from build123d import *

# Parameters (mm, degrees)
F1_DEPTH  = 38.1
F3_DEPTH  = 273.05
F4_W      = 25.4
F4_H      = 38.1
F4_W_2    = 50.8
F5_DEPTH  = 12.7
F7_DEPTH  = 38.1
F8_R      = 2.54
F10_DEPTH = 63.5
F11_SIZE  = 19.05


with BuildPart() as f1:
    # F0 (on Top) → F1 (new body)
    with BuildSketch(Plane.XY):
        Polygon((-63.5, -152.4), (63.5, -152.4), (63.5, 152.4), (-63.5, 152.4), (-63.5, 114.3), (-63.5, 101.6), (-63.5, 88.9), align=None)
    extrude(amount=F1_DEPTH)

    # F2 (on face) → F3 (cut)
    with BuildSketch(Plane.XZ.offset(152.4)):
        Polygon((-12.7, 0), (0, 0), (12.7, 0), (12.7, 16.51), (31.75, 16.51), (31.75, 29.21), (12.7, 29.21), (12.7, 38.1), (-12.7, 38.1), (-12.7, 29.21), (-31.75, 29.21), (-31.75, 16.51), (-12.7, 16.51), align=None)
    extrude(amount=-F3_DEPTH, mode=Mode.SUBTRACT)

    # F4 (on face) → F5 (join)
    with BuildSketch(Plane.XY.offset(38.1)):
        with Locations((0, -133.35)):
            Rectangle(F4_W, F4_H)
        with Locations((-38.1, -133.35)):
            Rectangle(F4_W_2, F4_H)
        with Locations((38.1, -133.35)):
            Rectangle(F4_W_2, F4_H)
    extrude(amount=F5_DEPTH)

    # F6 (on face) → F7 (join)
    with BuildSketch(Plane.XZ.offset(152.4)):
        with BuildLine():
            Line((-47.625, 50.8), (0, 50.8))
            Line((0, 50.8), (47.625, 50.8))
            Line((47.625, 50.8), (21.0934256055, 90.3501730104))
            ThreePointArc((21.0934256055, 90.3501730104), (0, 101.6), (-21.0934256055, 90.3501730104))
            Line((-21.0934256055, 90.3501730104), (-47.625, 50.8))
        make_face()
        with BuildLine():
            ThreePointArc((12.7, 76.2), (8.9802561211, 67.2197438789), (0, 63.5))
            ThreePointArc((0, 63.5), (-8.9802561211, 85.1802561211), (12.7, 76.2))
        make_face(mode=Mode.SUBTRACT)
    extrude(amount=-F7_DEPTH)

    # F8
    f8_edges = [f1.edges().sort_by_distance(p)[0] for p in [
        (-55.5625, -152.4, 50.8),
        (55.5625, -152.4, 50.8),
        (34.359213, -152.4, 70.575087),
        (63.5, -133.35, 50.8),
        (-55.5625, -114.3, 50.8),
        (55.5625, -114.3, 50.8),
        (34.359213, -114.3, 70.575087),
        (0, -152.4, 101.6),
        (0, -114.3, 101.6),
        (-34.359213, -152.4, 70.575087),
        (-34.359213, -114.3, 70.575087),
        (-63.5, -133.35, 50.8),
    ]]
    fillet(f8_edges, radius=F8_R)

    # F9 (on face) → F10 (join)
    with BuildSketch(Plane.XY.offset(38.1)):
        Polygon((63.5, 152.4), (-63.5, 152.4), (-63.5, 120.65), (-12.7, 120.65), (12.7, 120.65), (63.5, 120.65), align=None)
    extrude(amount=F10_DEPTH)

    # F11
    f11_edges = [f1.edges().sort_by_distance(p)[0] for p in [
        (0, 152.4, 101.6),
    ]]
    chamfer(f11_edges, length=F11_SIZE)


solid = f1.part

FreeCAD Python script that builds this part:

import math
import FreeCAD as App
import Part
import Sketcher
from FreeCAD import Vector
Q = App.Units.Quantity


def edges_at(feature, points):
    """Names of the edges that pass closest to the given points."""
    edges = feature.Shape.Edges
    near = lambda p: min(range(len(edges)), key=lambda i: edges[i].distToShape(Part.Vertex(*p))[0])
    return sorted({f"Edge{near(p) + 1}" for p in points})

doc = App.newDocument("Part")
body = doc.addObject("PartDesign::Body", "Body")

sketch1 = body.newObject("Sketcher::SketchObject", "Sketch")
sketch1.AttachmentSupport = (doc.getObject("XY_Plane"), [""])
sketch1.MapMode = "FlatFace"
sketch1.addGeometry([
    Part.LineSegment(Vector(-64, -152, 0), Vector(64, -152, 0)),
    Part.LineSegment(Vector(64, -152, 0), Vector(64, 152, 0)),
    Part.LineSegment(Vector(64, 152, 0), Vector(-64, 152, 0)),
    Part.LineSegment(Vector(-64, 152, 0), Vector(-64, -152, 0)),
], False)
sketch1.addConstraint([
    Sketcher.Constraint("Coincident", 0, 2, 1, 1),
    Sketcher.Constraint("Coincident", 1, 2, 2, 1),
    Sketcher.Constraint("Coincident", 2, 2, 3, 1),
    Sketcher.Constraint("Coincident", 3, 2, 0, 1),
    Sketcher.Constraint("Horizontal", 0),
    Sketcher.Constraint("Vertical", 1),
    Sketcher.Constraint("Horizontal", 2),
    Sketcher.Constraint("Vertical", 3),
    Sketcher.Constraint("Symmetric", 0, 2, 2, 2, -1, 1),
    Sketcher.Constraint("DistanceX", 0, 1, 0, 2, Q("5 in")),
    Sketcher.Constraint("DistanceY", 1, 1, 1, 2, Q("12 in")),
])
pad1 = body.newObject("PartDesign::Pad", "Pad")
pad1.Profile = sketch1
pad1.Length = Q("1.5 in")

sketch2 = body.newObject("Sketcher::SketchObject", "Sketch001")
sketch2.AttachmentSupport = (doc.getObject("XZ_Plane"), [""])
sketch2.MapMode = "FlatFace"
sketch2.AttachmentOffset = App.Placement(Vector(0, 0, 6 * 25.4), App.Rotation())
sketch2.addGeometry([
    Part.LineSegment(Vector(-13, 0, 0), Vector(13, 0, 0)),
    Part.LineSegment(Vector(13, 0, 0), Vector(13, 17, 0)),
    Part.LineSegment(Vector(13, 17, 0), Vector(32, 17, 0)),
    Part.LineSegment(Vector(32, 17, 0), Vector(32, 29, 0)),
    Part.LineSegment(Vector(32, 29, 0), Vector(13, 29, 0)),
    Part.LineSegment(Vector(13, 29, 0), Vector(13, 38, 0)),
    Part.LineSegment(Vector(13, 38, 0), Vector(-13, 38, 0)),
    Part.LineSegment(Vector(-13, 38, 0), Vector(-13, 29, 0)),
    Part.LineSegment(Vector(-13, 29, 0), Vector(-32, 29, 0)),
    Part.LineSegment(Vector(-32, 29, 0), Vector(-32, 17, 0)),
    Part.LineSegment(Vector(-32, 17, 0), Vector(-13, 17, 0)),
    Part.LineSegment(Vector(-13, 17, 0), Vector(-13, 0, 0)),
], False)
sketch2.addConstraint([
    Sketcher.Constraint("Coincident", 0, 2, 1, 1),
    Sketcher.Constraint("Coincident", 1, 2, 2, 1),
    Sketcher.Constraint("Coincident", 2, 2, 3, 1),
    Sketcher.Constraint("Coincident", 3, 2, 4, 1),
    Sketcher.Constraint("Coincident", 4, 2, 5, 1),
    Sketcher.Constraint("Coincident", 5, 2, 6, 1),
    Sketcher.Constraint("Coincident", 6, 2, 7, 1),
    Sketcher.Constraint("Coincident", 7, 2, 8, 1),
    Sketcher.Constraint("Coincident", 8, 2, 9, 1),
    Sketcher.Constraint("Coincident", 9, 2, 10, 1),
    Sketcher.Constraint("Coincident", 10, 2, 11, 1),
    Sketcher.Constraint("Coincident", 11, 2, 0, 1),
    Sketcher.Constraint("Horizontal", 0),
    Sketcher.Constraint("Vertical", 1),
    Sketcher.Constraint("Horizontal", 2),
    Sketcher.Constraint("Vertical", 3),
    Sketcher.Constraint("Horizontal", 4),
    Sketcher.Constraint("Vertical", 5),
    Sketcher.Constraint("Horizontal", 6),
    Sketcher.Constraint("Vertical", 7),
    Sketcher.Constraint("Horizontal", 8),
    Sketcher.Constraint("Vertical", 9),
    Sketcher.Constraint("Horizontal", 10),
    Sketcher.Constraint("Vertical", 11),
    Sketcher.Constraint("Symmetric", 0, 2, 11, 2, -1, 1),
    Sketcher.Constraint("Symmetric", 4, 2, 7, 2, -2),
    Sketcher.Constraint("Symmetric", 2, 2, 9, 2, -2),
    Sketcher.Constraint("Vertical", 1, 2, 4, 2),
    Sketcher.Constraint("DistanceX", 0, 1, 0, 2, Q("1 in")),
    Sketcher.Constraint("DistanceY", 3, 1, 3, 2, Q("0.5 in")),
    Sketcher.Constraint("DistanceX", 2, 1, 2, 2, Q("0.75 in")),
    Sketcher.Constraint("DistanceY", 1, 1, 1, 2, Q("0.65 in")),
    Sketcher.Constraint("DistanceY", 5, 1, 5, 2, Q("0.35 in")),
])
pocket1 = body.newObject("PartDesign::Pocket", "Pocket")
pocket1.Profile = sketch2
pocket1.Length = Q("10.75 in")

sketch3 = body.newObject("Sketcher::SketchObject", "Sketch002")
sketch3.AttachmentSupport = (doc.getObject("XY_Plane"), [""])
sketch3.MapMode = "FlatFace"
sketch3.AttachmentOffset = App.Placement(Vector(0, 0, 1.5 * 25.4), App.Rotation())
sketch3.addGeometry([
    Part.LineSegment(Vector(-64, -114, 0), Vector(-64, -152, 0)),
    Part.LineSegment(Vector(-64, -152, 0), Vector(64, -152, 0)),
    Part.LineSegment(Vector(64, -152, 0), Vector(64, -114, 0)),
    Part.LineSegment(Vector(64, -114, 0), Vector(-64, -114, 0)),
], False)
sketch3.addConstraint([
    Sketcher.Constraint("Coincident", 0, 2, 1, 1),
    Sketcher.Constraint("Coincident", 1, 2, 2, 1),
    Sketcher.Constraint("Coincident", 2, 2, 3, 1),
    Sketcher.Constraint("Coincident", 3, 2, 0, 1),
    Sketcher.Constraint("Vertical", 0),
    Sketcher.Constraint("Horizontal", 1),
    Sketcher.Constraint("Vertical", 2),
    Sketcher.Constraint("Horizontal", 3),
    Sketcher.Constraint("DistanceX", 1, 1, 1, 2, Q("5 in")),
    Sketcher.Constraint("DistanceY", 0, 2, 0, 1, Q("1.5 in")),
    Sketcher.Constraint("DistanceY", 0, 2, -1, 1, Q("6 in")),
    Sketcher.Constraint("DistanceX", 0, 2, -1, 1, Q("2.5 in")),
])
pad2 = body.newObject("PartDesign::Pad", "Pad001")
pad2.Profile = sketch3
pad2.Length = Q("0.5 in")

sketch4 = body.newObject("Sketcher::SketchObject", "Sketch003")
sketch4.AttachmentSupport = (doc.getObject("XZ_Plane"), [""])
sketch4.MapMode = "FlatFace"
sketch4.AttachmentOffset = App.Placement(Vector(0, 0, 6 * 25.4), App.Rotation())
sketch4.addGeometry([
    Part.LineSegment(Vector(-48, 51, 0), Vector(48, 51, 0)),
    Part.LineSegment(Vector(48, 51, 0), Vector(21, 90, 0)),
    Part.ArcOfCircle(Part.Circle(Vector(0, 76, 0), Vector(0, 0, 1), 25), math.radians(34), math.radians(146)),
    Part.LineSegment(Vector(-21, 90, 0), Vector(-48, 51, 0)),
    Part.ArcOfCircle(Part.Circle(Vector(0, 76, 0), Vector(0, 0, 1), 13), math.radians(0), math.radians(270)),
    Part.ArcOfCircle(Part.Circle(Vector(0, 76, 0), Vector(0, 0, 1), 13), math.radians(-90), math.radians(0)),
], False)
sketch4.addConstraint([
    Sketcher.Constraint("Coincident", 0, 2, 1, 1),
    Sketcher.Constraint("Tangent", 1, 2, 2, 1),
    Sketcher.Constraint("Tangent", 2, 2, 3, 1),
    Sketcher.Constraint("Coincident", 3, 2, 0, 1),
    Sketcher.Constraint("Tangent", 4, 1, 5, 2),
    Sketcher.Constraint("Coincident", 5, 1, 4, 2),
    Sketcher.Constraint("Horizontal", 0),
    Sketcher.Constraint("Coincident", 4, 3, 2, 3),
    Sketcher.Constraint("Symmetric", 1, 2, 2, 2, -2),
    Sketcher.Constraint("PointOnObject", 5, 1, -2),
    Sketcher.Constraint("Horizontal", 5, 3, 4, 1),
    Sketcher.Constraint("Radius", 2, Q("1 in")),
    Sketcher.Constraint("Radius", 4, Q("0.5 in")),
    Sketcher.Constraint("DistanceY", -1, 1, 2, 3, Q("3 in")),
    Sketcher.Constraint("DistanceY", -1, 1, 0, 2, Q("2 in")),
    Sketcher.Constraint("DistanceX", 0, 1, 0, 2, Q("3.75 in")),
])
pad3 = body.newObject("PartDesign::Pad", "Pad002")
pad3.Profile = sketch4
pad3.Length = Q("1.5 in")
pad3.Reversed = True
doc.recompute()

fillet = body.newObject("PartDesign::Fillet", "Fillet")
fillet.Base = (pad3, edges_at(pad3, [
    (-55.562, -152.4, 50.8),
    (55.562, -152.4, 50.8),
    (34.359, -152.4, 70.575),
    (63.5, -133.35, 50.8),
    (-55.562, -114.3, 50.8),
    (55.562, -114.3, 50.8),
    (34.359, -114.3, 70.575),
    (0, -152.4, 101.6),
    (0, -114.3, 101.6),
    (-34.359, -152.4, 70.575),
    (-34.359, -114.3, 70.575),
    (-63.5, -133.35, 50.8),
]))
fillet.Radius = Q("0.1 in")

sketch5 = body.newObject("Sketcher::SketchObject", "Sketch004")
sketch5.AttachmentSupport = (doc.getObject("XY_Plane"), [""])
sketch5.MapMode = "FlatFace"
sketch5.AttachmentOffset = App.Placement(Vector(0, 0, 1.5 * 25.4), App.Rotation())
sketch5.addGeometry([
    Part.LineSegment(Vector(64, 152, 0), Vector(-64, 152, 0)),
    Part.LineSegment(Vector(-64, 152, 0), Vector(-64, 121, 0)),
    Part.LineSegment(Vector(-64, 121, 0), Vector(64, 121, 0)),
    Part.LineSegment(Vector(64, 121, 0), Vector(64, 152, 0)),
], False)
sketch5.addConstraint([
    Sketcher.Constraint("Coincident", 0, 2, 1, 1),
    Sketcher.Constraint("Coincident", 1, 2, 2, 1),
    Sketcher.Constraint("Coincident", 2, 2, 3, 1),
    Sketcher.Constraint("Coincident", 3, 2, 0, 1),
    Sketcher.Constraint("Horizontal", 0),
    Sketcher.Constraint("Vertical", 1),
    Sketcher.Constraint("Horizontal", 2),
    Sketcher.Constraint("Vertical", 3),
    Sketcher.Constraint("DistanceX", 0, 2, 0, 1, Q("5 in")),
    Sketcher.Constraint("DistanceY", -1, 1, 0, 2, Q("6 in")),
    Sketcher.Constraint("DistanceY", 1, 2, 1, 1, Q("1.25 in")),
    Sketcher.Constraint("DistanceX", 0, 2, -1, 1, Q("2.5 in")),
])
pad4 = body.newObject("PartDesign::Pad", "Pad003")
pad4.Profile = sketch5
pad4.Length = Q("2.5 in")
doc.recompute()

chamfer = body.newObject("PartDesign::Chamfer", "Chamfer")
chamfer.Base = (pad4, edges_at(pad4, [(0, 152.4, 101.6)]))
chamfer.Size = Q("0.75 in")

doc.recompute()
